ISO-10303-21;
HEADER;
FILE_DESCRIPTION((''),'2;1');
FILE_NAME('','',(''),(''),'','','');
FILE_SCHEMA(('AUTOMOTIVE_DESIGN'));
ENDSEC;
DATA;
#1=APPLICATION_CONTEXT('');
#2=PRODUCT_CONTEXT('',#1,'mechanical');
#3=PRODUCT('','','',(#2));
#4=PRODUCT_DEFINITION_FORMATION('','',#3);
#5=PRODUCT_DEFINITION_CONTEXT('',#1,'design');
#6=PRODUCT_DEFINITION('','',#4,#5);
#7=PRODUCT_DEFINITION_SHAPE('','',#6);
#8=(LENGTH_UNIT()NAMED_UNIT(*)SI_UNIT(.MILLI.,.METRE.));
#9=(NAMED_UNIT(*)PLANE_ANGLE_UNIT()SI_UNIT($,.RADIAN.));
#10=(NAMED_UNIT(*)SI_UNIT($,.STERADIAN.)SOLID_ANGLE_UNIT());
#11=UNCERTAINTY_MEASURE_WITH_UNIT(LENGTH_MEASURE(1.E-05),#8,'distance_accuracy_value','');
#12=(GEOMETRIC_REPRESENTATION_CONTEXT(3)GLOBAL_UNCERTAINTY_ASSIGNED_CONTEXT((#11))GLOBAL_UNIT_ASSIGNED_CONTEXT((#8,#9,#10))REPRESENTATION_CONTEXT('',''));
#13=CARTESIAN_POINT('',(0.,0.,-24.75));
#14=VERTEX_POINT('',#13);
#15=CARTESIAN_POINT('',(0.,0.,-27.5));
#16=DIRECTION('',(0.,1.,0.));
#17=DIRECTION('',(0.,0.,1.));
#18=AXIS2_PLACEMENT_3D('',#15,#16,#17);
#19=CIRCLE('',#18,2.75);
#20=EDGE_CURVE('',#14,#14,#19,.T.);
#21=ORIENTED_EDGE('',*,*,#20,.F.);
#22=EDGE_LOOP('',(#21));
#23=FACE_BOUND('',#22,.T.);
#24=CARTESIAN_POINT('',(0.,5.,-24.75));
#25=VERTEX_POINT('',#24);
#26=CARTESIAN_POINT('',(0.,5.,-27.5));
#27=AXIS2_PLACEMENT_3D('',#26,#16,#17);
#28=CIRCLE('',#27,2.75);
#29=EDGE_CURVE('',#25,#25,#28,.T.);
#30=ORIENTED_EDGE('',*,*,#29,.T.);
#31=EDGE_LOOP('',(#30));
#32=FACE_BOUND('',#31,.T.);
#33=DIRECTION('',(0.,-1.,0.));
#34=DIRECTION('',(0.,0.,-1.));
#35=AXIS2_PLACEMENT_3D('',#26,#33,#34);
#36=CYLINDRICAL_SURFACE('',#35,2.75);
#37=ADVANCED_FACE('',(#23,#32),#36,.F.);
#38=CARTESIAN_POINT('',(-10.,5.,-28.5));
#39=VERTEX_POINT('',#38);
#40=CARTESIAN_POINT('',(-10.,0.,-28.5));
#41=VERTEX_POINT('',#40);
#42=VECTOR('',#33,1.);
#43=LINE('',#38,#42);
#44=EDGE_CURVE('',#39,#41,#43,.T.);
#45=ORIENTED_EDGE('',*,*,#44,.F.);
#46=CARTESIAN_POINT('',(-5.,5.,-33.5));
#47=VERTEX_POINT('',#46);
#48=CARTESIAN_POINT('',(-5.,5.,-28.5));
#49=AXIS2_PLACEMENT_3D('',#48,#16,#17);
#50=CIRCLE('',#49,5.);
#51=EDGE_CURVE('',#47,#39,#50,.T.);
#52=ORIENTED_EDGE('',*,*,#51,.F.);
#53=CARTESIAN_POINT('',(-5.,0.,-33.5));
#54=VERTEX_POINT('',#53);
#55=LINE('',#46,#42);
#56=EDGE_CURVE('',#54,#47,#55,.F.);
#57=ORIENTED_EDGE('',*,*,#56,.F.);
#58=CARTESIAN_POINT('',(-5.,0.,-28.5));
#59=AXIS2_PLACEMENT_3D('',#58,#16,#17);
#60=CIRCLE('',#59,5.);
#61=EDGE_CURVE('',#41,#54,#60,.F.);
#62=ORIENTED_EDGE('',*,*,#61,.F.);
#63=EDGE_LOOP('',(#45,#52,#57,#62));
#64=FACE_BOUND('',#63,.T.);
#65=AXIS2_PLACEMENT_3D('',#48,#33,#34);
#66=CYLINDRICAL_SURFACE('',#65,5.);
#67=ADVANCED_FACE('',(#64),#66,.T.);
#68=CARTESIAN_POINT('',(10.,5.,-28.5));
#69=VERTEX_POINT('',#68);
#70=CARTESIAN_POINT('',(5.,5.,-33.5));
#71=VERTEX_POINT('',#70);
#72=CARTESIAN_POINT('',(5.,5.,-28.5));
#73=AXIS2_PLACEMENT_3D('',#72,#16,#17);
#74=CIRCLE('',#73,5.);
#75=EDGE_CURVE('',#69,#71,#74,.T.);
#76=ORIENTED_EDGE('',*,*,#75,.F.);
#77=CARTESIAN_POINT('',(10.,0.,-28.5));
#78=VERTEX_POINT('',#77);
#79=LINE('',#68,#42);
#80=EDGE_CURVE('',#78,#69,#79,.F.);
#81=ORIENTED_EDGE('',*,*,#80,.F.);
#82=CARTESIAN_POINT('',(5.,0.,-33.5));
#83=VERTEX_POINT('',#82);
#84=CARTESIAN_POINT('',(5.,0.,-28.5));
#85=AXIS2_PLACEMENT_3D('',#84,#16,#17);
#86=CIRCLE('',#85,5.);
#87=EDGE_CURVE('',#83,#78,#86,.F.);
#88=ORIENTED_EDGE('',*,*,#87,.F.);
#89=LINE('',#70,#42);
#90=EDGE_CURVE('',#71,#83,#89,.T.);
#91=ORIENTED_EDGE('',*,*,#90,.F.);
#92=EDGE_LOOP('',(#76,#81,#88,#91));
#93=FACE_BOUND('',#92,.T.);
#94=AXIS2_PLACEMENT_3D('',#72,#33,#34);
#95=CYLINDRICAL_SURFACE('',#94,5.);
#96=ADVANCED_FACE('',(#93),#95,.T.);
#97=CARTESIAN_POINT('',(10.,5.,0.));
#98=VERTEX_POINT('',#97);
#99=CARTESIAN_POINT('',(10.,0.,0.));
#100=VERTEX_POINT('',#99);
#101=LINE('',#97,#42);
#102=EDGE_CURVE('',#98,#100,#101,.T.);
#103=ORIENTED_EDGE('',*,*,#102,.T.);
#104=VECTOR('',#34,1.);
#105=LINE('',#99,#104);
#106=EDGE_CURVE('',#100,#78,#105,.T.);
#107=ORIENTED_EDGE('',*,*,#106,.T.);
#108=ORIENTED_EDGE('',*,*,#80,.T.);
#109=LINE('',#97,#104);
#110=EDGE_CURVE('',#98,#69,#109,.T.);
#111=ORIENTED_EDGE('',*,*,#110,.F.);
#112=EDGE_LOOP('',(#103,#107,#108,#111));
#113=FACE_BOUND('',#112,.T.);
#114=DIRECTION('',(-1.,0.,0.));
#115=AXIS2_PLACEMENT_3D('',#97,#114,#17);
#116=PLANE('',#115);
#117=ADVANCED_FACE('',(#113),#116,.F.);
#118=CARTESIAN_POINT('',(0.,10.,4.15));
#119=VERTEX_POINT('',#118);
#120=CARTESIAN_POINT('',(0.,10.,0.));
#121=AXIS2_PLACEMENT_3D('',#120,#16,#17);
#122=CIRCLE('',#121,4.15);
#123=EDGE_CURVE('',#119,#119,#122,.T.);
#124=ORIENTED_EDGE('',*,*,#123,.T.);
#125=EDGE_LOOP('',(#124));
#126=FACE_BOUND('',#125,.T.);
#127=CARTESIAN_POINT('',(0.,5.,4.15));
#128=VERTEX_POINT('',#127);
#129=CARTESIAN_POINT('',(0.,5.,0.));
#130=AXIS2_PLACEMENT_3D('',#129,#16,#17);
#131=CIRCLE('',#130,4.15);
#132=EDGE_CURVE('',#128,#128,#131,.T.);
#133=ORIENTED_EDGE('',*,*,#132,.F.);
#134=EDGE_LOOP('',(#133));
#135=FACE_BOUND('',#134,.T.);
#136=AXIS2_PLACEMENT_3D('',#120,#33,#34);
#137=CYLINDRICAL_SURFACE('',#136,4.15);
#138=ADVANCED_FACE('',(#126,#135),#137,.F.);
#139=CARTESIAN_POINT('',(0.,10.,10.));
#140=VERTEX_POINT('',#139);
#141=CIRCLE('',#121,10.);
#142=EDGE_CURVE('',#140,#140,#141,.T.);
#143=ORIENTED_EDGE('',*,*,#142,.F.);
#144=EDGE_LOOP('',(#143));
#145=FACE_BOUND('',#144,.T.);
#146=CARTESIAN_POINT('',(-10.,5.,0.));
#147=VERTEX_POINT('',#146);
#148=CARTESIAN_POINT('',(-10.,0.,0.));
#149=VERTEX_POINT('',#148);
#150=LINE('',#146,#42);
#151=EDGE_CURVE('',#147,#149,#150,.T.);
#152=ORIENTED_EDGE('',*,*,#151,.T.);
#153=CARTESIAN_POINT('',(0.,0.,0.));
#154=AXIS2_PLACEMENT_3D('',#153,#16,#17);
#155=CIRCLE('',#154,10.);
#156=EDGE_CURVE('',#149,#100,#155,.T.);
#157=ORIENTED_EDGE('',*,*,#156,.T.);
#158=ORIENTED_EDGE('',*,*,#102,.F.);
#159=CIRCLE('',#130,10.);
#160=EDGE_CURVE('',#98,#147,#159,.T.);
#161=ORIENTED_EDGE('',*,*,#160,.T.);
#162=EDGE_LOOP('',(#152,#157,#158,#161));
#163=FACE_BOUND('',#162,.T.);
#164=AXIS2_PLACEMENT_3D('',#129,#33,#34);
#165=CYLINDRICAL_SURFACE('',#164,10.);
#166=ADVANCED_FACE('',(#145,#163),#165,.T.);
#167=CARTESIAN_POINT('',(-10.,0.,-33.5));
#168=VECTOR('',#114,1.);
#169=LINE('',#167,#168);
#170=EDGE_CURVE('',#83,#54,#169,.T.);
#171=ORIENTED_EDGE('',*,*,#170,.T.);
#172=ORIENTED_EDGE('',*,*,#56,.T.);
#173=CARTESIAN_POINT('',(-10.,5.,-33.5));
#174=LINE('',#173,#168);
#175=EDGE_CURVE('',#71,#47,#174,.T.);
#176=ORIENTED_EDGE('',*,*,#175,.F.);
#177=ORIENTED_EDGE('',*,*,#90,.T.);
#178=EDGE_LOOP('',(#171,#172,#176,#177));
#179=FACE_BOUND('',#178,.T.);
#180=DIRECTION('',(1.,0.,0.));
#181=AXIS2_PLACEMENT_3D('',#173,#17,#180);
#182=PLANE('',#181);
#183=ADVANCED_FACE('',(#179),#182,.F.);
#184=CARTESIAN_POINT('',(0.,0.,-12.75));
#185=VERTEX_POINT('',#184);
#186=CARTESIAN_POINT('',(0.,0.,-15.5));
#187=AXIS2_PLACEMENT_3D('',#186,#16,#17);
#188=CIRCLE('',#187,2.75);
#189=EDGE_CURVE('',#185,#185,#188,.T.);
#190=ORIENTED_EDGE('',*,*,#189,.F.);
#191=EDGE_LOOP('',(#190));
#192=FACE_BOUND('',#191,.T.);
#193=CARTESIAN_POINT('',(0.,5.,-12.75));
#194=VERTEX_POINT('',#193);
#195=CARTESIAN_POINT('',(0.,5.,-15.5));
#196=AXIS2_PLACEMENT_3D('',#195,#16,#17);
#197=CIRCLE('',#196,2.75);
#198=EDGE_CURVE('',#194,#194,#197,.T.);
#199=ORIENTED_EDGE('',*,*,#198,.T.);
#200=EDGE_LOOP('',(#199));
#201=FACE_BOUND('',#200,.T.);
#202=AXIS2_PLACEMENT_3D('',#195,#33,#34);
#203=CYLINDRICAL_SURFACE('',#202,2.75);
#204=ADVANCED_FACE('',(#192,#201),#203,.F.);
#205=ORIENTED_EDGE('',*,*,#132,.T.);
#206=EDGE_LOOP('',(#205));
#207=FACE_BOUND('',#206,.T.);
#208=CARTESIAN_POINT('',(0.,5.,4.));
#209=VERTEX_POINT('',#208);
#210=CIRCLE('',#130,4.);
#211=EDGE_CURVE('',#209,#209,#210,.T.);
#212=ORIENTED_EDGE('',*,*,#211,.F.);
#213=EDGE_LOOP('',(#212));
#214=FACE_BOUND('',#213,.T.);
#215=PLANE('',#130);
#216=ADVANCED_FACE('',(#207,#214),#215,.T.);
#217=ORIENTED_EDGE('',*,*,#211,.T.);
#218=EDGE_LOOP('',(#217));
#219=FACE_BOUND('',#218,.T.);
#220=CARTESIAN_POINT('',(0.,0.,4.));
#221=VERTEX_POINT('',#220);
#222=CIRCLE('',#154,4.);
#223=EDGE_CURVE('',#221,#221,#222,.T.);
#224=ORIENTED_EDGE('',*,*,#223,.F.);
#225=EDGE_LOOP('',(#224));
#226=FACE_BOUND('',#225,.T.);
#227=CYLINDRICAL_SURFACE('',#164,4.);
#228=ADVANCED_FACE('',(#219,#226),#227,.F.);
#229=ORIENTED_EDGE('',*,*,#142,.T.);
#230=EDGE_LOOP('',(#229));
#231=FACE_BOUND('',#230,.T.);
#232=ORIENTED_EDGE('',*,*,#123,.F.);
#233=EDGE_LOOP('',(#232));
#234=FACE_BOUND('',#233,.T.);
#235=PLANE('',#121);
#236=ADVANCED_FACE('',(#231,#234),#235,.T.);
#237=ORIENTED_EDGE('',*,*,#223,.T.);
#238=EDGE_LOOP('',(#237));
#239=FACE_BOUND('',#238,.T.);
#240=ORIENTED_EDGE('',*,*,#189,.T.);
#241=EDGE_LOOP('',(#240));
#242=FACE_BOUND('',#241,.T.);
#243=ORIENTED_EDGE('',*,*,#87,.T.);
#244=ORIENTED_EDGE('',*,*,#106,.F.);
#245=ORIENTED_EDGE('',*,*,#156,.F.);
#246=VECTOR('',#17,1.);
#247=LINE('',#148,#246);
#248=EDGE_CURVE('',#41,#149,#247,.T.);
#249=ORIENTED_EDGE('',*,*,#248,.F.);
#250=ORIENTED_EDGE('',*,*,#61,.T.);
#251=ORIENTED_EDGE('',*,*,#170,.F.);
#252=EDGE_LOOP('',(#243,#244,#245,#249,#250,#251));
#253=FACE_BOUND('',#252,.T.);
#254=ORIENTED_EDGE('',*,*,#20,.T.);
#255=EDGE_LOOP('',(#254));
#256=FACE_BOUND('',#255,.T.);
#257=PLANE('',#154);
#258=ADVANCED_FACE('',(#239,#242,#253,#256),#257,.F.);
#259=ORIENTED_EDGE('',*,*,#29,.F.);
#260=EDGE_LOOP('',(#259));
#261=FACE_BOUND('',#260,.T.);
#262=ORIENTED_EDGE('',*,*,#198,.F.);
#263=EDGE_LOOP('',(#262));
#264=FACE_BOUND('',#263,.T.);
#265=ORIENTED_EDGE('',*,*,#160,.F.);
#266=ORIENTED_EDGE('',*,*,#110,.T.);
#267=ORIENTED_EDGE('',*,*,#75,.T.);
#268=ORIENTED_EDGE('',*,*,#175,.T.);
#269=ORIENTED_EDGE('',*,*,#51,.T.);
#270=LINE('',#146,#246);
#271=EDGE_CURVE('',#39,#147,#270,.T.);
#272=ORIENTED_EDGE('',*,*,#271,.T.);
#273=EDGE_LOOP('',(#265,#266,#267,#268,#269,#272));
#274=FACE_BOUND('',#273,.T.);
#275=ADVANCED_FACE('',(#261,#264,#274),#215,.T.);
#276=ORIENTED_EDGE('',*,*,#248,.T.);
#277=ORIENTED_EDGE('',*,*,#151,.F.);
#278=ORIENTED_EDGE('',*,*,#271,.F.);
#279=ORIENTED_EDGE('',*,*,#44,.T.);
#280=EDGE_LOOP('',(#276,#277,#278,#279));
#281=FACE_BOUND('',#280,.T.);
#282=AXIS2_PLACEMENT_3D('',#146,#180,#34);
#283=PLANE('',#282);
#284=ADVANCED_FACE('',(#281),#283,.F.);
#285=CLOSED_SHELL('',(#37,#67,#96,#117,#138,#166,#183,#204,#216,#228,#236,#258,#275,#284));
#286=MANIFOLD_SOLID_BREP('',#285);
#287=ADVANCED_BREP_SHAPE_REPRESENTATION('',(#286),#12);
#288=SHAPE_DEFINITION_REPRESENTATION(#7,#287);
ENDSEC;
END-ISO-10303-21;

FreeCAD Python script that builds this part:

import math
import FreeCAD as App
import Part
import Sketcher
from FreeCAD import Vector
Q = App.Units.Quantity


def edges_at(feature, points):
    """Names of the edges that pass closest to the given points."""
    edges = feature.Shape.Edges
    near = lambda p: min(range(len(edges)), key=lambda i: edges[i].distToShape(Part.Vertex(*p))[0])
    return sorted({f"Edge{near(p) + 1}" for p in points})

doc = App.newDocument("Part")
body = doc.addObject("PartDesign::Body", "Body")

sketch1 = doc.addObject("Sketcher::SketchObject", "Sketch")
body.addObject(sketch1)
sketch1.AttachmentSupport = (doc.XZ_Plane, [""])
sketch1.MapMode = "FlatFace"
sketch1.addGeometry([
    Part.LineSegment(Vector(10, 0, 0), Vector(10, -33.5, 0)),
    Part.LineSegment(Vector(10, -33.5, 0), Vector(-10, -33.5, 0)),
    Part.LineSegment(Vector(-10, -33.5, 0), Vector(-10, 0, 0)),
    Part.ArcOfCircle(Part.Circle(Vector(0, 0, 0), Vector(0, 0, 1), 10), math.radians(0), math.radians(180)),
    Part.Circle(Vector(0, 0, 0), Vector(0, 0, 1), 4),
    Part.Circle(Vector(0, -15.5, 0), Vector(0, 0, 1), 2.8),
    Part.Circle(Vector(0, -27.5, 0), Vector(0, 0, 1), 2.8),
], False)
sketch1.addConstraint([
    Sketcher.Constraint("Coincident", 0, 2, 1, 1),
    Sketcher.Constraint("Coincident", 1, 2, 2, 1),
    Sketcher.Constraint("Tangent", 2, 2, 3, 2),
    Sketcher.Constraint("Tangent", 3, 1, 0, 1),
    Sketcher.Constraint("Vertical", 0),
    Sketcher.Constraint("Horizontal", 1),
    Sketcher.Constraint("Vertical", 2),
    Sketcher.Constraint("Coincident", 3, 3, -1, 1),
    Sketcher.Constraint("Coincident", 4, 3, -1, 1),
    Sketcher.Constraint("Equal", 5, 6),
    Sketcher.Constraint("PointOnObject", 5, 3, -2),
    Sketcher.Constraint("PointOnObject", 6, 3, -2),
    Sketcher.Constraint("Diameter", 4, Q("8 mm")),
    Sketcher.Constraint("Radius", 3, Q("10 mm")),
    Sketcher.Constraint("Diameter", 5, Q("5.5 mm")),
    Sketcher.Constraint("DistanceY", 0, 2, 0, 1, Q("33.5 mm")),
    Sketcher.Constraint("DistanceY", 6, 3, 5, 3, Q("12 mm")),
    Sketcher.Constraint("DistanceY", 0, 2, 6, 3, Q("6 mm")),
])
pad1 = doc.addObject("PartDesign::Pad", "Pad")
body.addObject(pad1)
pad1.Profile = sketch1
pad1.Length = 5
pad1.Reversed = True

sketch2 = doc.addObject("Sketcher::SketchObject", "Sketch001")
body.addObject(sketch2)
sketch2.AttachmentSupport = (doc.XZ_Plane, [""])
sketch2.MapMode = "FlatFace"
sketch2.AttachmentOffset = App.Placement(Vector(0, 0, -5), App.Rotation())
sketch2.addGeometry([
    Part.Circle(Vector(0, 0, 0), Vector(0, 0, 1), 10),
    Part.Circle(Vector(0, 0, 0), Vector(0, 0, 1), 4.2),
], False)
sketch2.addConstraint([
    Sketcher.Constraint("Coincident", 0, 3, -1, 1),
    Sketcher.Constraint("Coincident", 1, 3, -1, 1),
    Sketcher.Constraint("Diameter", 0, Q("20 mm")),
    Sketcher.Constraint("Diameter", 1, Q("8.3 mm")),
])
pad2 = doc.addObject("PartDesign::Pad", "Pad001")
body.addObject(pad2)
pad2.Profile = sketch2
pad2.Length = 5
pad2.Reversed = True
doc.recompute()

fillet = doc.addObject("PartDesign::Fillet", "Fillet")
body.addObject(fillet)
fillet.Base = (pad2, edges_at(pad2, [(-10, 2.5, -33.5), (10, 2.5, -33.5)]))
fillet.Radius = 5

doc.recompute()
